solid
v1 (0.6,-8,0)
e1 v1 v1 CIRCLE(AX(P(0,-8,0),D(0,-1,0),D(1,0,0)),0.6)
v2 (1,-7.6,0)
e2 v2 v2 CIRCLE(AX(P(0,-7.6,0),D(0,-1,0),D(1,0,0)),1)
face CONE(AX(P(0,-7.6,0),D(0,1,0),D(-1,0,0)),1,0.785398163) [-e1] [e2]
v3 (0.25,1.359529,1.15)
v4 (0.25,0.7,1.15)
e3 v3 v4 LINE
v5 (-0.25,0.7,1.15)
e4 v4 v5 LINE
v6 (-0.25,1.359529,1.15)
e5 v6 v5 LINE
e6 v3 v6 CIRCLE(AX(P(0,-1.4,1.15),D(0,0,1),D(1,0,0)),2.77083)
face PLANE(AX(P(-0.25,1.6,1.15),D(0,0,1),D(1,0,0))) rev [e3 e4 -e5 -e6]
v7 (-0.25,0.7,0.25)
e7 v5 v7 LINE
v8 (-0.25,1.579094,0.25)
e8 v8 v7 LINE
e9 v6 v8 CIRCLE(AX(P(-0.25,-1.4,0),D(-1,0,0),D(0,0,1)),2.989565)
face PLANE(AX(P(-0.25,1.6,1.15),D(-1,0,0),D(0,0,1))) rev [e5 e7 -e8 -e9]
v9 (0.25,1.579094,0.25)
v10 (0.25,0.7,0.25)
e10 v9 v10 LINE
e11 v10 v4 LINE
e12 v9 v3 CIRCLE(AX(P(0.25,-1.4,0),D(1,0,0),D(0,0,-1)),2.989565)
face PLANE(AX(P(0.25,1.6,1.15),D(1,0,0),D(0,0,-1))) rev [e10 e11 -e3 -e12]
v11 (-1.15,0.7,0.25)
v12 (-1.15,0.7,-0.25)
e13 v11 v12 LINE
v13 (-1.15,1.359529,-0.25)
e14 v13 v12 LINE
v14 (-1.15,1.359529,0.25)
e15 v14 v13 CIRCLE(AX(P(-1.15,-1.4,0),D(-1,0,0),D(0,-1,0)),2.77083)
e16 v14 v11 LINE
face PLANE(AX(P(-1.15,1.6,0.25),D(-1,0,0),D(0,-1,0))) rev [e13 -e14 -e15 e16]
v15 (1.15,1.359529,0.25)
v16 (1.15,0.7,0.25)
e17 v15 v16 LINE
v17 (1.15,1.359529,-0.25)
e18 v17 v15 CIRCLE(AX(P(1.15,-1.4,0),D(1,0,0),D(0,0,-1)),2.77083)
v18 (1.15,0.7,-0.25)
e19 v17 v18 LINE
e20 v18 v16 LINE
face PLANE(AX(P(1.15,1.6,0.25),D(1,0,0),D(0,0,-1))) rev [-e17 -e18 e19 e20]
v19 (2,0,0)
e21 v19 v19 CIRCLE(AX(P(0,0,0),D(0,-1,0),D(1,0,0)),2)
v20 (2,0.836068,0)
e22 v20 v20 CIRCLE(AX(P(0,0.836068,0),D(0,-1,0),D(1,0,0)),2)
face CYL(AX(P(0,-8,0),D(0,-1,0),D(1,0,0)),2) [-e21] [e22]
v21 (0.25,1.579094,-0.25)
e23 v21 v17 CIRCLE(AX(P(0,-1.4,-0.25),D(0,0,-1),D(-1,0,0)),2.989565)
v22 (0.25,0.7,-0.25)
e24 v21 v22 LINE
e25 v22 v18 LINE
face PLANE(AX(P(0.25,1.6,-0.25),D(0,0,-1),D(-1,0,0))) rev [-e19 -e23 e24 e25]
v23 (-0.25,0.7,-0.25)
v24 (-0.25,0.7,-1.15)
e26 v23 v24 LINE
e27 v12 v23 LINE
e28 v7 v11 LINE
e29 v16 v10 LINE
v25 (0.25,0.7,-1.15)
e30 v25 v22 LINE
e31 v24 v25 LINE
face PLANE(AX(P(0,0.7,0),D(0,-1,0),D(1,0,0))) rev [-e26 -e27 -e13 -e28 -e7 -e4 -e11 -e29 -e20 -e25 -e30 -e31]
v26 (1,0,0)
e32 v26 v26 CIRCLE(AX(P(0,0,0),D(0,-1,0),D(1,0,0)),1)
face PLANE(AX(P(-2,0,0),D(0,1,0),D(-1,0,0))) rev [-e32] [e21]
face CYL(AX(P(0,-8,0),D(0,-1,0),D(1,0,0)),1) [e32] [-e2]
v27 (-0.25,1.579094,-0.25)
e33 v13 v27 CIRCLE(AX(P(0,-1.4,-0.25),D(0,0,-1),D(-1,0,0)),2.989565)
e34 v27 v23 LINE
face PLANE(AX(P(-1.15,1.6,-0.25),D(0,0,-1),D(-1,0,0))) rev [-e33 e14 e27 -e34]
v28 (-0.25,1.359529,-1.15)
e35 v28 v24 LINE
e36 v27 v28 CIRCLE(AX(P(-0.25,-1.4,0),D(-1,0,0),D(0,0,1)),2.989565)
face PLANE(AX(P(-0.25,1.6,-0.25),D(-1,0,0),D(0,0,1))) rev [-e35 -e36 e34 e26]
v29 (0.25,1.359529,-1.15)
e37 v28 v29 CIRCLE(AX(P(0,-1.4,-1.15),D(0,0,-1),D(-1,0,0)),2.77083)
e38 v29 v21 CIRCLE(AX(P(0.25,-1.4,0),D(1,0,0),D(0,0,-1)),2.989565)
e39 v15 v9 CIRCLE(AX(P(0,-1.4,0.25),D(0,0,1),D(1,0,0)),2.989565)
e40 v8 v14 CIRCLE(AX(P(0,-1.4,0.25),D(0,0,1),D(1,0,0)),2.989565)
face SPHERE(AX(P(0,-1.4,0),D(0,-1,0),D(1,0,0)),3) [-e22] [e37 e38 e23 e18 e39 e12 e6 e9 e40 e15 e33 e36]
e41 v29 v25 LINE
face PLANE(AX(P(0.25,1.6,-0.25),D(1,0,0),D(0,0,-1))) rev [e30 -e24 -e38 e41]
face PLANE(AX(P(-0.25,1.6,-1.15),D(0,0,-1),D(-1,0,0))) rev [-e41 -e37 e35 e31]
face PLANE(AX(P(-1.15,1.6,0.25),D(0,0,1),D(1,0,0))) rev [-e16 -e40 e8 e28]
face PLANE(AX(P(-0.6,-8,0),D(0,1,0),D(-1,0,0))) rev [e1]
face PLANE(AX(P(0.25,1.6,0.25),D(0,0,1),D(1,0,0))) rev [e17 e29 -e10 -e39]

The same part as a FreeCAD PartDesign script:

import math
import FreeCAD as App
import Part
import Sketcher
Q = App.Units.Quantity

doc = App.newDocument("Part")
body = doc.addObject("PartDesign::Body", "Body")

sketch1 = doc.addObject("Sketcher::SketchObject", "Sketch")
body.addObject(sketch1)
sketch1.AttachmentSupport = (doc.XY_Plane, [""])
sketch1.MapMode = "FlatFace"
sketch1.addGeometry(Part.LineSegment(App.Vector(-2, 0, 0), App.Vector(-1, 0, 0)), False)
sketch1.addGeometry(Part.LineSegment(App.Vector(-1, 0, 0), App.Vector(-1, -7.6, 0)), False)
sketch1.addGeometry(Part.LineSegment(App.Vector(-1, -7.6, 0), App.Vector(-0.6, -8, 0)), False)
sketch1.addGeometry(Part.LineSegment(App.Vector(-0.6, -8, 0), App.Vector(0, -8, 0)), False)
sketch1.addGeometry(Part.LineSegment(App.Vector(0, -8, 0), App.Vector(0, 1.6, 0)), False)
sketch1.addGeometry(Part.ArcOfCircle(Part.Circle(App.Vector(0, -1.4, 0), App.Vector(0, 0, 1), 3), math.radians(90), math.radians(132)), False)
sketch1.addGeometry(Part.LineSegment(App.Vector(-2, 0.8, 0), App.Vector(-2, 0, 0)), False)
sketch1.addConstraint(Sketcher.Constraint("Coincident", 0, 2, 1, 1))
sketch1.addConstraint(Sketcher.Constraint("Coincident", 1, 2, 2, 1))
sketch1.addConstraint(Sketcher.Constraint("Coincident", 2, 2, 3, 1))
sketch1.addConstraint(Sketcher.Constraint("Coincident", 3, 2, 4, 1))
sketch1.addConstraint(Sketcher.Constraint("Coincident", 4, 2, 5, 1))
sketch1.addConstraint(Sketcher.Constraint("Coincident", 5, 2, 6, 1))
sketch1.addConstraint(Sketcher.Constraint("Coincident", 6, 2, 0, 1))
sketch1.addConstraint(Sketcher.Constraint("Horizontal", 0))
sketch1.addConstraint(Sketcher.Constraint("Vertical", 1))
sketch1.addConstraint(Sketcher.Constraint("Horizontal", 3))
sketch1.addConstraint(Sketcher.Constraint("Vertical", 4))
sketch1.addConstraint(Sketcher.Constraint("Vertical", 6))
sketch1.addConstraint(Sketcher.Constraint("PointOnObject", 5, 3, -2))
sketch1.addConstraint(Sketcher.Constraint("PointOnObject", 0, 2, -1))
sketch1.addConstraint(Sketcher.Constraint("PointOnObject", 3, 2, -2))
sketch1.addConstraint(Sketcher.Constraint("Radius", 5, Q("3 mm")))
sketch1.addConstraint(Sketcher.Constraint("DistanceX", 0, 1, 0, 2, Q("1 mm")))
sketch1.addConstraint(Sketcher.Constraint("Angle", 2, Q("-45 deg")))
sketch1.addConstraint(Sketcher.Constraint("DistanceX", 3, 1, 3, 2, Q("0.6 mm")))
sketch1.addConstraint(Sketcher.Constraint("DistanceY", 1, 2, 1, 1, Q("7.6 mm")))
sketch1.addConstraint(Sketcher.Constraint("DistanceY", 4, 1, 4, 2, Q("9.6 mm")))
sketch1.addConstraint(Sketcher.Constraint("DistanceX", 0, 2, -1, 1, Q("1 mm")))
revolution = doc.addObject("PartDesign::Revolution", "Revolution")
body.addObject(revolution)
revolution.Profile = sketch1
revolution.ReferenceAxis = (sketch1, ["V_Axis"])
revolution.Angle = 360

sketch2 = doc.addObject("Sketcher::SketchObject", "Sketch001")
body.addObject(sketch2)
sketch2.AttachmentSupport = (doc.XZ_Plane, [""])
sketch2.MapMode = "FlatFace"
sketch2.AttachmentOffset = App.Placement(App.Vector(0, 0, -0.7), App.Rotation())
sketch2.addGeometry(Part.LineSegment(App.Vector(0.2, 1.1, 0), App.Vector(-0.2, 1.1, 0)), False)
sketch2.addGeometry(Part.LineSegment(App.Vector(-0.2, 1.1, 0), App.Vector(-0.2, 0.2, 0)), False)
sketch2.addGeometry(Part.LineSegment(App.Vector(-0.2, 0.2, 0), App.Vector(-1.1, 0.2, 0)), False)
sketch2.addGeometry(Part.LineSegment(App.Vector(-1.1, 0.2, 0), App.Vector(-1.1, -0.2, 0)), False)
sketch2.addGeometry(Part.LineSegment(App.Vector(-1.1, -0.2, 0), App.Vector(-0.2, -0.2, 0)), False)
sketch2.addGeometry(Part.LineSegment(App.Vector(-0.2, -0.2, 0), App.Vector(-0.2, -1.1, 0)), False)
sketch2.addGeometry(Part.LineSegment(App.Vector(-0.2, -1.1, 0), App.Vector(0.2, -1.1, 0)), False)
sketch2.addGeometry(Part.LineSegment(App.Vector(0.2, -1.1, 0), App.Vector(0.2, -0.2, 0)), False)
sketch2.addGeometry(Part.LineSegment(App.Vector(0.2, -0.2, 0), App.Vector(1.1, -0.2, 0)), False)
sketch2.addGeometry(Part.LineSegment(App.Vector(1.1, -0.2, 0), App.Vector(1.1, 0.2, 0)), False)
sketch2.addGeometry(Part.LineSegment(App.Vector(1.1, 0.2, 0), App.Vector(0.2, 0.2, 0)), False)
sketch2.addGeometry(Part.LineSegment(App.Vector(0.2, 0.2, 0), App.Vector(0.2, 1.1, 0)), False)
sketch2.addConstraint(Sketcher.Constraint("Coincident", 0, 2, 1, 1))
sketch2.addConstraint(Sketcher.Constraint("Coincident", 1, 2, 2, 1))
sketch2.addConstraint(Sketcher.Constraint("Coincident", 2, 2, 3, 1))
sketch2.addConstraint(Sketcher.Constraint("Coincident", 3, 2, 4, 1))
sketch2.addConstraint(Sketcher.Constraint("Coincident", 4, 2, 5, 1))
sketch2.addConstraint(Sketcher.Constraint("Coincident", 5, 2, 6, 1))
sketch2.addConstraint(Sketcher.Constraint("Coincident", 6, 2, 7, 1))
sketch2.addConstraint(Sketcher.Constraint("Coincident", 7, 2, 8, 1))
sketch2.addConstraint(Sketcher.Constraint("Coincident", 8, 2, 9, 1))
sketch2.addConstraint(Sketcher.Constraint("Coincident", 9, 2, 10, 1))
sketch2.addConstraint(Sketcher.Constraint("Coincident", 10, 2, 11, 1))
sketch2.addConstraint(Sketcher.Constraint("Coincident", 11, 2, 0, 1))
sketch2.addConstraint(Sketcher.Constraint("Horizontal", 0))
sketch2.addConstraint(Sketcher.Constraint("Vertical", 1))
sketch2.addConstraint(Sketcher.Constraint("Horizontal", 2))
sketch2.addConstraint(Sketcher.Constraint("Vertical", 3))
sketch2.addConstraint(Sketcher.Constraint("Horizontal", 4))
sketch2.addConstraint(Sketcher.Constraint("Vertical", 5))
sketch2.addConstraint(Sketcher.Constraint("Horizontal", 6))
sketch2.addConstraint(Sketcher.Constraint("Vertical", 7))
sketch2.addConstraint(Sketcher.Constraint("Horizontal", 8))
sketch2.addConstraint(Sketcher.Constraint("Vertical", 9))
sketch2.addConstraint(Sketcher.Constraint("Horizontal", 10))
sketch2.addConstraint(Sketcher.Constraint("Vertical", 11))
sketch2.addConstraint(Sketcher.Constraint("Symmetric", 0, 2, 6, 2, -1, 1))
sketch2.addConstraint(Sketcher.Constraint("Symmetric", 2, 2, 8, 2, -1, 1))
sketch2.addConstraint(Sketcher.Constraint("Symmetric", 4, 2, 10, 2, -1, 1))
sketch2.addConstraint(Sketcher.Constraint("Symmetric", 4, 2, 7, 2, -2))
sketch2.addConstraint(Sketcher.Constraint("Equal", 10, 1))
sketch2.addConstraint(Sketcher.Constraint("Equal", 6, 3))
sketch2.addConstraint(Sketcher.Constraint("DistanceX", 0, 2, 0, 1, Q("0.5 mm")))
sketch2.addConstraint(Sketcher.Constraint("DistanceX", 2, 2, 2, 1, Q("0.9 mm")))
pocket1 = doc.addObject("PartDesign::Pocket", "Pocket")
body.addObject(pocket1)
pocket1.Profile = sketch2
pocket1.Type = "ThroughAll"

doc.recompute()
